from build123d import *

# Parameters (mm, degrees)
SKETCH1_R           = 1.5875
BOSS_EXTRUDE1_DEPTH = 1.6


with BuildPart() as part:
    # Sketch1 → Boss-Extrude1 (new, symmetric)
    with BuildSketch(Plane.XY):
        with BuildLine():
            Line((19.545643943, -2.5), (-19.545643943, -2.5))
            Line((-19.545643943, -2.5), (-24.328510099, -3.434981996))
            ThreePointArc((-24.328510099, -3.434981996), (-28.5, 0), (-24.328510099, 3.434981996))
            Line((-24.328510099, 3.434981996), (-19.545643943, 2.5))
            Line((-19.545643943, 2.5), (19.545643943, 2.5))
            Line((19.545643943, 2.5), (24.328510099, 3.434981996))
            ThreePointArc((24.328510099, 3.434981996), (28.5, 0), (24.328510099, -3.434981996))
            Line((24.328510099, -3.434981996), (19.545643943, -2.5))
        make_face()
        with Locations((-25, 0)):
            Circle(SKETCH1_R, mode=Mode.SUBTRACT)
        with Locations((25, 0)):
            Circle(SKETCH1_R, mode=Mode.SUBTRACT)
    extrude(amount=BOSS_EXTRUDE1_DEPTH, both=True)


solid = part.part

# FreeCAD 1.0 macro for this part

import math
import FreeCAD as App
import Part
import Sketcher
from FreeCAD import Vector
Q = App.Units.Quantity

doc = App.newDocument("Part")
body = doc.addObject("PartDesign::Body", "Body")

# Sketch on XY plane
sketch1 = body.newObject("Sketcher::SketchObject", "Sketch")
sketch1.AttachmentSupport = (doc.getObject("XY_Plane"), [""])
sketch1.MapMode = "FlatFace"
sketch1.addGeometry(Part.LineSegment(Vector(-19.5, -2.5, 0), Vector(19.5, -2.5, 0)), False)
sketch1.addGeometry(Part.LineSegment(Vector(19.5, -2.5, 0), Vector(24.3, -3.4, 0)), False)
sketch1.addGeometry(Part.ArcOfCircle(Part.Circle(Vector(25, 0, 0), Vector(0, 0, 1), 3.5), math.radians(-101), math.radians(101)), False)
sketch1.addGeometry(Part.LineSegment(Vector(24.3, 3.4, 0), Vector(19.5, 2.5, 0)), False)
sketch1.addGeometry(Part.LineSegment(Vector(19.5, 2.5, 0), Vector(-19.5, 2.5, 0)), False)
sketch1.addGeometry(Part.LineSegment(Vector(-19.5, 2.5, 0), Vector(-24.3, 3.4, 0)), False)
sketch1.addGeometry(Part.ArcOfCircle(Part.Circle(Vector(-25, 0, 0), Vector(0, 0, 1), 3.5), math.radians(79), math.radians(281)), False)
sketch1.addGeometry(Part.LineSegment(Vector(-24.3, -3.4, 0), Vector(-19.5, -2.5, 0)), False)
sketch1.addGeometry(Part.Circle(Vector(25, 0, 0), Vector(0, 0, 1), 1.6), False)
sketch1.addGeometry(Part.Circle(Vector(-25, 0, 0), Vector(0, 0, 1), 1.6), False)
sketch1.addConstraint(Sketcher.Constraint("Coincident", 0, 2, 1, 1))
sketch1.addConstraint(Sketcher.Constraint("Tangent", 1, 2, 2, 1))
sketch1.addConstraint(Sketcher.Constraint("Tangent", 2, 2, 3, 1))
sketch1.addConstraint(Sketcher.Constraint("Coincident", 3, 2, 4, 1))
sketch1.addConstraint(Sketcher.Constraint("Coincident", 4, 2, 5, 1))
sketch1.addConstraint(Sketcher.Constraint("Tangent", 5, 2, 6, 1))
sketch1.addConstraint(Sketcher.Constraint("Tangent", 6, 2, 7, 1))
sketch1.addConstraint(Sketcher.Constraint("Coincident", 7, 2, 0, 1))
sketch1.addConstraint(Sketcher.Constraint("Horizontal", 0))
sketch1.addConstraint(Sketcher.Constraint("Horizontal", 4))
sketch1.addConstraint(Sketcher.Constraint("Coincident", 8, 3, 2, 3))
sketch1.addConstraint(Sketcher.Constraint("Coincident", 9, 3, 6, 3))
sketch1.addConstraint(Sketcher.Constraint("Equal", 2, 6))
sketch1.addConstraint(Sketcher.Constraint("Equal", 8, 9))
sketch1.addConstraint(Sketcher.Constraint("Symmetric", 2, 3, 6, 3, -1, 1))
sketch1.addConstraint(Sketcher.Constraint("Symmetric", 0, 2, 4, 2, -1, 1))
sketch1.addConstraint(Sketcher.Constraint("Symmetric", 2, 2, 5, 2, -2))
sketch1.addConstraint(Sketcher.Constraint("Parallel", 3, 7))
sketch1.addConstraint(Sketcher.Constraint("Radius", 2, Q("3.5 mm")))
sketch1.addConstraint(Sketcher.Constraint("Diameter", 8, Q("3.175 mm")))
sketch1.addConstraint(Sketcher.Constraint("DistanceX", -1, 1, 2, 3, Q("25 mm")))
sketch1.addConstraint(Sketcher.Constraint("DistanceY", 0, 2, 3, 2, Q("5 mm")))
sketch1.addConstraint(Sketcher.Constraint("DistanceX", 0, 1, 0, 2, Q("39.091288 mm")))
pad1 = body.newObject("PartDesign::Pad", "Pad")
pad1.Profile = sketch1
pad1.Length = 3.2
pad1.Midplane = True

doc.recompute()
